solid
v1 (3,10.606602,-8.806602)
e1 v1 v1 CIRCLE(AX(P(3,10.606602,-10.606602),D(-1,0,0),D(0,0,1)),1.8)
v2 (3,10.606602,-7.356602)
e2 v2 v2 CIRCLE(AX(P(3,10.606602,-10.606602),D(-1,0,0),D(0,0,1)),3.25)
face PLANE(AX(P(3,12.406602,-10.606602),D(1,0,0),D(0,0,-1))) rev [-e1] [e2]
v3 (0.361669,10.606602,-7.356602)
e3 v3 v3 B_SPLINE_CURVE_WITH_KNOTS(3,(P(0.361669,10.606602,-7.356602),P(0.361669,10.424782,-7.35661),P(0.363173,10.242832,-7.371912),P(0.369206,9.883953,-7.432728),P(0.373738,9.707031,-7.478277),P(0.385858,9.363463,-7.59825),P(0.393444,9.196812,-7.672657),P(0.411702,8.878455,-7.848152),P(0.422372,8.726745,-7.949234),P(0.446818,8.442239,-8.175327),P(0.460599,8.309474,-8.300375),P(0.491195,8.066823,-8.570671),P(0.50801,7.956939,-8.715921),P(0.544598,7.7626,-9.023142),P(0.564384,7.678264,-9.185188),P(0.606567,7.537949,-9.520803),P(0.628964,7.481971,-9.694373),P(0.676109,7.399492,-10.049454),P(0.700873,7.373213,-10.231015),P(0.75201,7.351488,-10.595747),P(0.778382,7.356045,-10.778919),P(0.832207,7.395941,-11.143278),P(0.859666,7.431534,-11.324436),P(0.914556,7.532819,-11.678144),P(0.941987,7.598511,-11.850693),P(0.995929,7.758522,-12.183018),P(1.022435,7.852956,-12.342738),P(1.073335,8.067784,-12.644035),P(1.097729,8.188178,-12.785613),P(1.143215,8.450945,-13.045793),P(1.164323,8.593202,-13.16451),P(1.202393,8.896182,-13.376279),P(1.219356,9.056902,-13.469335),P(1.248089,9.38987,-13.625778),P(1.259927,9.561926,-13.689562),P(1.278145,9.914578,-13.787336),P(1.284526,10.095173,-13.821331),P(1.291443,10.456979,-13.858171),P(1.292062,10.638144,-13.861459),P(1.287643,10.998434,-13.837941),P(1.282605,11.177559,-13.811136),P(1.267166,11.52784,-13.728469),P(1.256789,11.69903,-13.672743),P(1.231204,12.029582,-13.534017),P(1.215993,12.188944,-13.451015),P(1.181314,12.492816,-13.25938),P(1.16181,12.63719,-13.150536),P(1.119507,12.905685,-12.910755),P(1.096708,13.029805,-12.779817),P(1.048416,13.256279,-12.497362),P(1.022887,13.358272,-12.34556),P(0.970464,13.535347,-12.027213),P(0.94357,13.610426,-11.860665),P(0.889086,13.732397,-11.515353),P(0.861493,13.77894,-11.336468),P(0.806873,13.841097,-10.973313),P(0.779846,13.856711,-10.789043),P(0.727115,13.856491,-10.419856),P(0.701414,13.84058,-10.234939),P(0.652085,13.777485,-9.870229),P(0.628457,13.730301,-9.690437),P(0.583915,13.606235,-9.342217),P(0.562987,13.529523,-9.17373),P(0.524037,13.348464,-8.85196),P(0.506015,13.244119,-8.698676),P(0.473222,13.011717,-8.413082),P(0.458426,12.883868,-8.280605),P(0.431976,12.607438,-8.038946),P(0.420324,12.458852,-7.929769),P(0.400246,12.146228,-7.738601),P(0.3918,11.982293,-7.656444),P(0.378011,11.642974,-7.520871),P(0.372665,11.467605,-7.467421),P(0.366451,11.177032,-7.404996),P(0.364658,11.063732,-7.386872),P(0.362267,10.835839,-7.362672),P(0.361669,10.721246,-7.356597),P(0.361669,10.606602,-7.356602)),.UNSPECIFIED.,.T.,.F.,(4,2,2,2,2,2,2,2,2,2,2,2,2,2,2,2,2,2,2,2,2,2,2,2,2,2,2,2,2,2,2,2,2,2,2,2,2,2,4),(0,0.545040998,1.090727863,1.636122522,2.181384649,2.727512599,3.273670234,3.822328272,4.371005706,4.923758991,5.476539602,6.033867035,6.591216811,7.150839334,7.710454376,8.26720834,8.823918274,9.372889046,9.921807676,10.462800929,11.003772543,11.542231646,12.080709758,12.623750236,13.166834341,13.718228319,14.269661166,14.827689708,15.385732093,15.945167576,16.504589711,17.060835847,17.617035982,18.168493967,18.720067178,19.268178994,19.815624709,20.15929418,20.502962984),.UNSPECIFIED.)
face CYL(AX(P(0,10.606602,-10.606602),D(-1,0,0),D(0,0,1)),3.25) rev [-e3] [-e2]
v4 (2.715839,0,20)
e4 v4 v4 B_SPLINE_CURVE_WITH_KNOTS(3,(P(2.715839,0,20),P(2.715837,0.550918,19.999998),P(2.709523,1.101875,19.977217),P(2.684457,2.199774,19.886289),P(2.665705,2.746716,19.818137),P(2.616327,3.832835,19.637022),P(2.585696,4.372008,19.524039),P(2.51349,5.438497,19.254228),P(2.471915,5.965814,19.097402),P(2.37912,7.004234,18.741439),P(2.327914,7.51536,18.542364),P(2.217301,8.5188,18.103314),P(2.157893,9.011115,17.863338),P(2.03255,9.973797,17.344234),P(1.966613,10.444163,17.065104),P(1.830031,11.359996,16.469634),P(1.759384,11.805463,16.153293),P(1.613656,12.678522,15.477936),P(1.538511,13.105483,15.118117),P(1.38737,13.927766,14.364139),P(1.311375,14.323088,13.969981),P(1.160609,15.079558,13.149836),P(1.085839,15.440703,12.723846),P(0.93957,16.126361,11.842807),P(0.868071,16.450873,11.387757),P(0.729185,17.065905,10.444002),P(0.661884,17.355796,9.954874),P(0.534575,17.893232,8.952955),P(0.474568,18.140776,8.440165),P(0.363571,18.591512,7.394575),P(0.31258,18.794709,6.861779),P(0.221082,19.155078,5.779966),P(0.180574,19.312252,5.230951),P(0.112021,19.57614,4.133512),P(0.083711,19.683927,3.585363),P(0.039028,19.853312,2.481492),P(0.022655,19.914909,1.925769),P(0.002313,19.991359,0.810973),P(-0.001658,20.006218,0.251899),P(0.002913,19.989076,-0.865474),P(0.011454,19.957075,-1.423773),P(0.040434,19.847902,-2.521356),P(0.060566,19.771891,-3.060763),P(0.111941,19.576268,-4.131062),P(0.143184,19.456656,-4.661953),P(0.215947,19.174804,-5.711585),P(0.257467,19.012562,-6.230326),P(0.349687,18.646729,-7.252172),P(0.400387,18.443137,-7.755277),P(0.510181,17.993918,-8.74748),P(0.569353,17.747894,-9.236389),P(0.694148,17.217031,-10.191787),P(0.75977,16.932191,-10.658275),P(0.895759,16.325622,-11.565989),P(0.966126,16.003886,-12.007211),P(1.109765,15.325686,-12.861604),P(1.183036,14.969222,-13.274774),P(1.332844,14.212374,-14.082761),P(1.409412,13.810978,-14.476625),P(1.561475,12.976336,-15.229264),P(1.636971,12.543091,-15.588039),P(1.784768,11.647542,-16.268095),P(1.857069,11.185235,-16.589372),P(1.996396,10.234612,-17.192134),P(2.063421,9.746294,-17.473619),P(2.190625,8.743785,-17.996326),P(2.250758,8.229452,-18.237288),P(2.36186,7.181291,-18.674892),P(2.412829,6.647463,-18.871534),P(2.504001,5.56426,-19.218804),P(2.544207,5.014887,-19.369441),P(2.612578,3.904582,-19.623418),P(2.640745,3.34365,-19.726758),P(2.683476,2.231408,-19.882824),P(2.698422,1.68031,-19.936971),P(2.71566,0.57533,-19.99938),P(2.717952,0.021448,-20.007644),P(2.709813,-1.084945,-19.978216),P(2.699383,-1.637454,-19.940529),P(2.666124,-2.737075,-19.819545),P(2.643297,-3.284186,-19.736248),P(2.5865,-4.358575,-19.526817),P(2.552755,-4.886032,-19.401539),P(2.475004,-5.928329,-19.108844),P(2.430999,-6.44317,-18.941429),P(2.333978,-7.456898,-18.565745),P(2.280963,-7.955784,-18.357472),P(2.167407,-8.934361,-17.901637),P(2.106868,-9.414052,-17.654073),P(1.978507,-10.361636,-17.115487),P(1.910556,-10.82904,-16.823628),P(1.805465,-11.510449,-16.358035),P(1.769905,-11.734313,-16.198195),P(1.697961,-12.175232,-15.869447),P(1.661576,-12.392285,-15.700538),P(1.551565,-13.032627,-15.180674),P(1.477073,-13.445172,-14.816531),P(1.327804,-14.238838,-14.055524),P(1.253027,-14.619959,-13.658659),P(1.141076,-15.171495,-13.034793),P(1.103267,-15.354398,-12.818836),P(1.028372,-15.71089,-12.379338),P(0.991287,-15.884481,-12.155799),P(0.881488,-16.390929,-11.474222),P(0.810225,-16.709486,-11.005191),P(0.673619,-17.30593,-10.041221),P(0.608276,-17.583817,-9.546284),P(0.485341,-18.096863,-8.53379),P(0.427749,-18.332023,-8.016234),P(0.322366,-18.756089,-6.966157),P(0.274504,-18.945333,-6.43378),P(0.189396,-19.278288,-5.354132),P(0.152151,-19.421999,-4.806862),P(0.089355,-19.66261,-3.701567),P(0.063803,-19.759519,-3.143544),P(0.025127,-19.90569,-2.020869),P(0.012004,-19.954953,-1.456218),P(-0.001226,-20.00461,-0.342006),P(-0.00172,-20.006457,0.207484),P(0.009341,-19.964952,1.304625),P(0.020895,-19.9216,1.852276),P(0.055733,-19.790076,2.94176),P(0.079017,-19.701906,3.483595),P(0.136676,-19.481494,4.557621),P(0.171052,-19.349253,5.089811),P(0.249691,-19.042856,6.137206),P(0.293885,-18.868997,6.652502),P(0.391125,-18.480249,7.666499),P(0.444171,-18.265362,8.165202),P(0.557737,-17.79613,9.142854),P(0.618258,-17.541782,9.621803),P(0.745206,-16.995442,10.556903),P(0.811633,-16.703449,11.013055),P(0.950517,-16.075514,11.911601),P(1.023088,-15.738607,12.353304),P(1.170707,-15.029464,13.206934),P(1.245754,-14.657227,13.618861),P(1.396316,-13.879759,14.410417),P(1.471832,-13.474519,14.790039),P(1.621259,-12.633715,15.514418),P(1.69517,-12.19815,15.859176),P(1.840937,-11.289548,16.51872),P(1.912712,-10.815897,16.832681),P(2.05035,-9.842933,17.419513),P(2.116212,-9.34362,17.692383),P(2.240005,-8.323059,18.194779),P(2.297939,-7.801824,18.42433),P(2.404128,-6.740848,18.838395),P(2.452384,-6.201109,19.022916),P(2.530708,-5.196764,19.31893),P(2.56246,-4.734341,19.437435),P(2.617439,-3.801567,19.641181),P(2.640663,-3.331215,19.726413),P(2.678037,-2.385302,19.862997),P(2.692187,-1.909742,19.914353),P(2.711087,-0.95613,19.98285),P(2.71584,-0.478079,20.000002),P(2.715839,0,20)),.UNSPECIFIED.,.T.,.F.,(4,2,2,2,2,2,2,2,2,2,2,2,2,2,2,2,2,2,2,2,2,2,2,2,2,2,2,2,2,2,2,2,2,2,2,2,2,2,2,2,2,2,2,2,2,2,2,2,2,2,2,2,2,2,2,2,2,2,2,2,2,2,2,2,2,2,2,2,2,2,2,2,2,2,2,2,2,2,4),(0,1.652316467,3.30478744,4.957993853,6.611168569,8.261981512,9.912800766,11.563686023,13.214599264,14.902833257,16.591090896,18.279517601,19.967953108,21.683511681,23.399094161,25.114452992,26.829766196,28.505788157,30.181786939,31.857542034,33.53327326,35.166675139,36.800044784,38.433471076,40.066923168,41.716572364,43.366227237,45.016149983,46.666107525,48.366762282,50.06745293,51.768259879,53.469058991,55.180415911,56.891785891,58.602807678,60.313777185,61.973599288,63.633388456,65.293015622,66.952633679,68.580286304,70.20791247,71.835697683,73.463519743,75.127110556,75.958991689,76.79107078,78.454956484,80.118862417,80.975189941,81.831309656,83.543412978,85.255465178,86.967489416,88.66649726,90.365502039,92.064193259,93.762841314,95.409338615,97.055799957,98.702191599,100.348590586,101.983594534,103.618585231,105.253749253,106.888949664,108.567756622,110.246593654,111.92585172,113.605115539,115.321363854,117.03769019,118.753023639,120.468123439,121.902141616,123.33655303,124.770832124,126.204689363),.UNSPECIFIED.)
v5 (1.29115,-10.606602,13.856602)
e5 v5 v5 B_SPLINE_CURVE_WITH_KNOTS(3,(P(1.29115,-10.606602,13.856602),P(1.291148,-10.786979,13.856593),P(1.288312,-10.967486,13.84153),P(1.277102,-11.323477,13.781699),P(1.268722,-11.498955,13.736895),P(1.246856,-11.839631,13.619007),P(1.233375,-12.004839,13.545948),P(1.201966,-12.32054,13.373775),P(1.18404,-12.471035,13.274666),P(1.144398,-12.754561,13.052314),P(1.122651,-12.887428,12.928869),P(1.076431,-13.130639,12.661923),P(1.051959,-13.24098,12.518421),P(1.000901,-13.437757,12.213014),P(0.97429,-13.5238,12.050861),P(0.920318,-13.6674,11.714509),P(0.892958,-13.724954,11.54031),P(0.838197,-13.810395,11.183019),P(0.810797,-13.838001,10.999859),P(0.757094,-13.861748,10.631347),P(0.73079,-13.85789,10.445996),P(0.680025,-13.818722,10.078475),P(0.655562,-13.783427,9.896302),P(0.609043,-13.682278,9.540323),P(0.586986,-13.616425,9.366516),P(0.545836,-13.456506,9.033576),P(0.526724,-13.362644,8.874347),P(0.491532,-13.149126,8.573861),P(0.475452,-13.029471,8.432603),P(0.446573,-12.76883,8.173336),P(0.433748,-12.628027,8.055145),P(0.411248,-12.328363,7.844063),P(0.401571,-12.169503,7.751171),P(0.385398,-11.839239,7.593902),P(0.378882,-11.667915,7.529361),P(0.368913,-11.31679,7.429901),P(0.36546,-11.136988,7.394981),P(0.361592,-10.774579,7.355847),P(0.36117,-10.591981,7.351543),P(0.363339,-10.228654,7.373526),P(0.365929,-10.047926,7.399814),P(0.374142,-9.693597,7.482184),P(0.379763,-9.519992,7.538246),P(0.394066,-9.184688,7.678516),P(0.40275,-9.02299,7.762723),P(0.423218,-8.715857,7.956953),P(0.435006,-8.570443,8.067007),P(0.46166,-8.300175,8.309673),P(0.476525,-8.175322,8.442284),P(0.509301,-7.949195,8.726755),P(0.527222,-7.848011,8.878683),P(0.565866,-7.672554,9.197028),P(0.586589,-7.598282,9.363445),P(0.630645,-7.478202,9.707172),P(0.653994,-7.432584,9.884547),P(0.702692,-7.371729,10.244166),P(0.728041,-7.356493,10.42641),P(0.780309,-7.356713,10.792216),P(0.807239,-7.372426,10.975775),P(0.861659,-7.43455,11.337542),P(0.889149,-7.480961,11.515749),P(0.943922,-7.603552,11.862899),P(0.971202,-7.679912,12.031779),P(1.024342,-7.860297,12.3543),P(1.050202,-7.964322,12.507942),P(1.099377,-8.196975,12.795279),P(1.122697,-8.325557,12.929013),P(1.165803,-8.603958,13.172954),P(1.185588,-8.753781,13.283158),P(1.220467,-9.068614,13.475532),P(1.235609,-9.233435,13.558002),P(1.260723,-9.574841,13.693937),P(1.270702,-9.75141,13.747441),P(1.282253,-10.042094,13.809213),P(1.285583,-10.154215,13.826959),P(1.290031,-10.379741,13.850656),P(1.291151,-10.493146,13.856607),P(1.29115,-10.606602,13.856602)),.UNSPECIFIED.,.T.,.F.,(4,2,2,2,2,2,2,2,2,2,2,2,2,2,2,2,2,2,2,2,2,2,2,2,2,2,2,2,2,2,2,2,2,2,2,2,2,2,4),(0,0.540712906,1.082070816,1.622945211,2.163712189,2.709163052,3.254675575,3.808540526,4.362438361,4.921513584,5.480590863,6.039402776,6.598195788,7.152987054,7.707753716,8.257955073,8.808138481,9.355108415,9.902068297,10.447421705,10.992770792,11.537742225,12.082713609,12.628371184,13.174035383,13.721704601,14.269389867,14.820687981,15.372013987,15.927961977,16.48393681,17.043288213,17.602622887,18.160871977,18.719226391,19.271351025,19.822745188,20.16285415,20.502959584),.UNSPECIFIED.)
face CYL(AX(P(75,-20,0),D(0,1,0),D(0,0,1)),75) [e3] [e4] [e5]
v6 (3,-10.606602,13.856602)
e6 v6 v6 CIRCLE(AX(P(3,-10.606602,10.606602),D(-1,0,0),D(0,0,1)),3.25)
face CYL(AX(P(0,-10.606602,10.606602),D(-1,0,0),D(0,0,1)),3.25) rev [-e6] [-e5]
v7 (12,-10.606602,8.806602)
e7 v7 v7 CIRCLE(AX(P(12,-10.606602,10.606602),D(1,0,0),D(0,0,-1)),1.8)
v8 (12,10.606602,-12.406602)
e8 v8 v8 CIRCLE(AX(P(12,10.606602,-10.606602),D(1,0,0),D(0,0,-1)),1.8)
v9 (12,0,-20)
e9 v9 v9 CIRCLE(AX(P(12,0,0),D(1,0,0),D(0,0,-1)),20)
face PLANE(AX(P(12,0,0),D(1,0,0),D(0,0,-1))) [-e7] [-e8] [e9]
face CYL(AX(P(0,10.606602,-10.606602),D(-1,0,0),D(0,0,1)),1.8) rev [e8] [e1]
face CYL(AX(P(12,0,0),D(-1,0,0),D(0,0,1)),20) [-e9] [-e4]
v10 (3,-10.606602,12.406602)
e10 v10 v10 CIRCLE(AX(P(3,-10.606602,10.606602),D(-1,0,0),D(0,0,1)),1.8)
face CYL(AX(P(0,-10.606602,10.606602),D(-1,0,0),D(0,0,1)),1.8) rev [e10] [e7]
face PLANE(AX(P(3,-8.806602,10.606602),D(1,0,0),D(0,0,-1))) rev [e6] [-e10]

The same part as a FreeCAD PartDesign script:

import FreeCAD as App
import Part
import Sketcher

V = App.Vector
Q = App.Units.Quantity

doc = App.newDocument("Part")
body = doc.addObject("PartDesign::Body", "Body")

sketch1 = body.newObject("Sketcher::SketchObject", "Sketch")
sketch1.AttachmentSupport = (doc.getObject("YZ_Plane"), [""])
sketch1.MapMode = "FlatFace"
sketch1.addGeometry(Part.Circle(V(0, 0, 0), V(0, 0, 1), 20), False)
sketch1.addConstraint([
    Sketcher.Constraint("Coincident", 0, 3, -1, 1),
    Sketcher.Constraint("Diameter", 0, Q("40 mm")),
])
pad1 = body.newObject("PartDesign::Pad", "Pad")
pad1.Profile = sketch1
pad1.Length = 12

sketch2 = body.newObject("Sketcher::SketchObject", "Sketch001")
sketch2.AttachmentSupport = (doc.getObject("YZ_Plane"), [""])
sketch2.MapMode = "FlatFace"
sketch2.addGeometry([
    Part.Circle(V(-10.6, 10.6, 0), V(0, 0, 1), 1.8),
    Part.Circle(V(10.6, -10.6, 0), V(0, 0, 1), 1.8),
], False)
sketch2.addConstraint([
    Sketcher.Constraint("Equal", 0, 1),
    Sketcher.Constraint("Symmetric", 0, 3, 1, 3, -1, 1),
    Sketcher.Constraint("Diameter", 0, Q("3.6 mm")),
    Sketcher.Constraint("DistanceX", 0, 3, -1, 1, Q("10.606602 mm")),
    Sketcher.Constraint("DistanceY", -1, 1, 0, 3, Q("10.606602 mm")),
])
doc.recompute()
hole = body.newObject("PartDesign::Hole", "Hole")
hole.Profile = sketch2
hole.ThreadType = "None"
hole.Diameter = 3.6
hole.DepthType = "ThroughAll"
hole.HoleCutType = "Counterbore"
hole.HoleCutDiameter = 6.5
hole.HoleCutDepth = 3
hole.Reversed = True

sketch3 = body.newObject("Sketcher::SketchObject", "Sketch002")
sketch3.AttachmentSupport = (doc.getObject("XZ_Plane"), [""])
sketch3.MapMode = "FlatFace"
sketch3.addGeometry([
    Part.Circle(V(75, 0, 0), V(0, 0, 1), 100),
    Part.Circle(V(75, 0, 0), V(0, 0, 1), 75),
], False)
sketch3.addConstraint([
    Sketcher.Constraint("Coincident", 1, 3, 0, 3),
    Sketcher.Constraint("PointOnObject", 0, 3, -1),
    Sketcher.Constraint("Diameter", 0, Q("200 mm")),
    Sketcher.Constraint("Diameter", 1, Q("150 mm")),
    Sketcher.Constraint("DistanceX", -1, 1, 0, 3, Q("75 mm")),
])
pocket1 = body.newObject("PartDesign::Pocket", "Pocket")
pocket1.Profile = sketch3
pocket1.Type = "ThroughAll"
pocket1.Midplane = True

doc.recompute()
